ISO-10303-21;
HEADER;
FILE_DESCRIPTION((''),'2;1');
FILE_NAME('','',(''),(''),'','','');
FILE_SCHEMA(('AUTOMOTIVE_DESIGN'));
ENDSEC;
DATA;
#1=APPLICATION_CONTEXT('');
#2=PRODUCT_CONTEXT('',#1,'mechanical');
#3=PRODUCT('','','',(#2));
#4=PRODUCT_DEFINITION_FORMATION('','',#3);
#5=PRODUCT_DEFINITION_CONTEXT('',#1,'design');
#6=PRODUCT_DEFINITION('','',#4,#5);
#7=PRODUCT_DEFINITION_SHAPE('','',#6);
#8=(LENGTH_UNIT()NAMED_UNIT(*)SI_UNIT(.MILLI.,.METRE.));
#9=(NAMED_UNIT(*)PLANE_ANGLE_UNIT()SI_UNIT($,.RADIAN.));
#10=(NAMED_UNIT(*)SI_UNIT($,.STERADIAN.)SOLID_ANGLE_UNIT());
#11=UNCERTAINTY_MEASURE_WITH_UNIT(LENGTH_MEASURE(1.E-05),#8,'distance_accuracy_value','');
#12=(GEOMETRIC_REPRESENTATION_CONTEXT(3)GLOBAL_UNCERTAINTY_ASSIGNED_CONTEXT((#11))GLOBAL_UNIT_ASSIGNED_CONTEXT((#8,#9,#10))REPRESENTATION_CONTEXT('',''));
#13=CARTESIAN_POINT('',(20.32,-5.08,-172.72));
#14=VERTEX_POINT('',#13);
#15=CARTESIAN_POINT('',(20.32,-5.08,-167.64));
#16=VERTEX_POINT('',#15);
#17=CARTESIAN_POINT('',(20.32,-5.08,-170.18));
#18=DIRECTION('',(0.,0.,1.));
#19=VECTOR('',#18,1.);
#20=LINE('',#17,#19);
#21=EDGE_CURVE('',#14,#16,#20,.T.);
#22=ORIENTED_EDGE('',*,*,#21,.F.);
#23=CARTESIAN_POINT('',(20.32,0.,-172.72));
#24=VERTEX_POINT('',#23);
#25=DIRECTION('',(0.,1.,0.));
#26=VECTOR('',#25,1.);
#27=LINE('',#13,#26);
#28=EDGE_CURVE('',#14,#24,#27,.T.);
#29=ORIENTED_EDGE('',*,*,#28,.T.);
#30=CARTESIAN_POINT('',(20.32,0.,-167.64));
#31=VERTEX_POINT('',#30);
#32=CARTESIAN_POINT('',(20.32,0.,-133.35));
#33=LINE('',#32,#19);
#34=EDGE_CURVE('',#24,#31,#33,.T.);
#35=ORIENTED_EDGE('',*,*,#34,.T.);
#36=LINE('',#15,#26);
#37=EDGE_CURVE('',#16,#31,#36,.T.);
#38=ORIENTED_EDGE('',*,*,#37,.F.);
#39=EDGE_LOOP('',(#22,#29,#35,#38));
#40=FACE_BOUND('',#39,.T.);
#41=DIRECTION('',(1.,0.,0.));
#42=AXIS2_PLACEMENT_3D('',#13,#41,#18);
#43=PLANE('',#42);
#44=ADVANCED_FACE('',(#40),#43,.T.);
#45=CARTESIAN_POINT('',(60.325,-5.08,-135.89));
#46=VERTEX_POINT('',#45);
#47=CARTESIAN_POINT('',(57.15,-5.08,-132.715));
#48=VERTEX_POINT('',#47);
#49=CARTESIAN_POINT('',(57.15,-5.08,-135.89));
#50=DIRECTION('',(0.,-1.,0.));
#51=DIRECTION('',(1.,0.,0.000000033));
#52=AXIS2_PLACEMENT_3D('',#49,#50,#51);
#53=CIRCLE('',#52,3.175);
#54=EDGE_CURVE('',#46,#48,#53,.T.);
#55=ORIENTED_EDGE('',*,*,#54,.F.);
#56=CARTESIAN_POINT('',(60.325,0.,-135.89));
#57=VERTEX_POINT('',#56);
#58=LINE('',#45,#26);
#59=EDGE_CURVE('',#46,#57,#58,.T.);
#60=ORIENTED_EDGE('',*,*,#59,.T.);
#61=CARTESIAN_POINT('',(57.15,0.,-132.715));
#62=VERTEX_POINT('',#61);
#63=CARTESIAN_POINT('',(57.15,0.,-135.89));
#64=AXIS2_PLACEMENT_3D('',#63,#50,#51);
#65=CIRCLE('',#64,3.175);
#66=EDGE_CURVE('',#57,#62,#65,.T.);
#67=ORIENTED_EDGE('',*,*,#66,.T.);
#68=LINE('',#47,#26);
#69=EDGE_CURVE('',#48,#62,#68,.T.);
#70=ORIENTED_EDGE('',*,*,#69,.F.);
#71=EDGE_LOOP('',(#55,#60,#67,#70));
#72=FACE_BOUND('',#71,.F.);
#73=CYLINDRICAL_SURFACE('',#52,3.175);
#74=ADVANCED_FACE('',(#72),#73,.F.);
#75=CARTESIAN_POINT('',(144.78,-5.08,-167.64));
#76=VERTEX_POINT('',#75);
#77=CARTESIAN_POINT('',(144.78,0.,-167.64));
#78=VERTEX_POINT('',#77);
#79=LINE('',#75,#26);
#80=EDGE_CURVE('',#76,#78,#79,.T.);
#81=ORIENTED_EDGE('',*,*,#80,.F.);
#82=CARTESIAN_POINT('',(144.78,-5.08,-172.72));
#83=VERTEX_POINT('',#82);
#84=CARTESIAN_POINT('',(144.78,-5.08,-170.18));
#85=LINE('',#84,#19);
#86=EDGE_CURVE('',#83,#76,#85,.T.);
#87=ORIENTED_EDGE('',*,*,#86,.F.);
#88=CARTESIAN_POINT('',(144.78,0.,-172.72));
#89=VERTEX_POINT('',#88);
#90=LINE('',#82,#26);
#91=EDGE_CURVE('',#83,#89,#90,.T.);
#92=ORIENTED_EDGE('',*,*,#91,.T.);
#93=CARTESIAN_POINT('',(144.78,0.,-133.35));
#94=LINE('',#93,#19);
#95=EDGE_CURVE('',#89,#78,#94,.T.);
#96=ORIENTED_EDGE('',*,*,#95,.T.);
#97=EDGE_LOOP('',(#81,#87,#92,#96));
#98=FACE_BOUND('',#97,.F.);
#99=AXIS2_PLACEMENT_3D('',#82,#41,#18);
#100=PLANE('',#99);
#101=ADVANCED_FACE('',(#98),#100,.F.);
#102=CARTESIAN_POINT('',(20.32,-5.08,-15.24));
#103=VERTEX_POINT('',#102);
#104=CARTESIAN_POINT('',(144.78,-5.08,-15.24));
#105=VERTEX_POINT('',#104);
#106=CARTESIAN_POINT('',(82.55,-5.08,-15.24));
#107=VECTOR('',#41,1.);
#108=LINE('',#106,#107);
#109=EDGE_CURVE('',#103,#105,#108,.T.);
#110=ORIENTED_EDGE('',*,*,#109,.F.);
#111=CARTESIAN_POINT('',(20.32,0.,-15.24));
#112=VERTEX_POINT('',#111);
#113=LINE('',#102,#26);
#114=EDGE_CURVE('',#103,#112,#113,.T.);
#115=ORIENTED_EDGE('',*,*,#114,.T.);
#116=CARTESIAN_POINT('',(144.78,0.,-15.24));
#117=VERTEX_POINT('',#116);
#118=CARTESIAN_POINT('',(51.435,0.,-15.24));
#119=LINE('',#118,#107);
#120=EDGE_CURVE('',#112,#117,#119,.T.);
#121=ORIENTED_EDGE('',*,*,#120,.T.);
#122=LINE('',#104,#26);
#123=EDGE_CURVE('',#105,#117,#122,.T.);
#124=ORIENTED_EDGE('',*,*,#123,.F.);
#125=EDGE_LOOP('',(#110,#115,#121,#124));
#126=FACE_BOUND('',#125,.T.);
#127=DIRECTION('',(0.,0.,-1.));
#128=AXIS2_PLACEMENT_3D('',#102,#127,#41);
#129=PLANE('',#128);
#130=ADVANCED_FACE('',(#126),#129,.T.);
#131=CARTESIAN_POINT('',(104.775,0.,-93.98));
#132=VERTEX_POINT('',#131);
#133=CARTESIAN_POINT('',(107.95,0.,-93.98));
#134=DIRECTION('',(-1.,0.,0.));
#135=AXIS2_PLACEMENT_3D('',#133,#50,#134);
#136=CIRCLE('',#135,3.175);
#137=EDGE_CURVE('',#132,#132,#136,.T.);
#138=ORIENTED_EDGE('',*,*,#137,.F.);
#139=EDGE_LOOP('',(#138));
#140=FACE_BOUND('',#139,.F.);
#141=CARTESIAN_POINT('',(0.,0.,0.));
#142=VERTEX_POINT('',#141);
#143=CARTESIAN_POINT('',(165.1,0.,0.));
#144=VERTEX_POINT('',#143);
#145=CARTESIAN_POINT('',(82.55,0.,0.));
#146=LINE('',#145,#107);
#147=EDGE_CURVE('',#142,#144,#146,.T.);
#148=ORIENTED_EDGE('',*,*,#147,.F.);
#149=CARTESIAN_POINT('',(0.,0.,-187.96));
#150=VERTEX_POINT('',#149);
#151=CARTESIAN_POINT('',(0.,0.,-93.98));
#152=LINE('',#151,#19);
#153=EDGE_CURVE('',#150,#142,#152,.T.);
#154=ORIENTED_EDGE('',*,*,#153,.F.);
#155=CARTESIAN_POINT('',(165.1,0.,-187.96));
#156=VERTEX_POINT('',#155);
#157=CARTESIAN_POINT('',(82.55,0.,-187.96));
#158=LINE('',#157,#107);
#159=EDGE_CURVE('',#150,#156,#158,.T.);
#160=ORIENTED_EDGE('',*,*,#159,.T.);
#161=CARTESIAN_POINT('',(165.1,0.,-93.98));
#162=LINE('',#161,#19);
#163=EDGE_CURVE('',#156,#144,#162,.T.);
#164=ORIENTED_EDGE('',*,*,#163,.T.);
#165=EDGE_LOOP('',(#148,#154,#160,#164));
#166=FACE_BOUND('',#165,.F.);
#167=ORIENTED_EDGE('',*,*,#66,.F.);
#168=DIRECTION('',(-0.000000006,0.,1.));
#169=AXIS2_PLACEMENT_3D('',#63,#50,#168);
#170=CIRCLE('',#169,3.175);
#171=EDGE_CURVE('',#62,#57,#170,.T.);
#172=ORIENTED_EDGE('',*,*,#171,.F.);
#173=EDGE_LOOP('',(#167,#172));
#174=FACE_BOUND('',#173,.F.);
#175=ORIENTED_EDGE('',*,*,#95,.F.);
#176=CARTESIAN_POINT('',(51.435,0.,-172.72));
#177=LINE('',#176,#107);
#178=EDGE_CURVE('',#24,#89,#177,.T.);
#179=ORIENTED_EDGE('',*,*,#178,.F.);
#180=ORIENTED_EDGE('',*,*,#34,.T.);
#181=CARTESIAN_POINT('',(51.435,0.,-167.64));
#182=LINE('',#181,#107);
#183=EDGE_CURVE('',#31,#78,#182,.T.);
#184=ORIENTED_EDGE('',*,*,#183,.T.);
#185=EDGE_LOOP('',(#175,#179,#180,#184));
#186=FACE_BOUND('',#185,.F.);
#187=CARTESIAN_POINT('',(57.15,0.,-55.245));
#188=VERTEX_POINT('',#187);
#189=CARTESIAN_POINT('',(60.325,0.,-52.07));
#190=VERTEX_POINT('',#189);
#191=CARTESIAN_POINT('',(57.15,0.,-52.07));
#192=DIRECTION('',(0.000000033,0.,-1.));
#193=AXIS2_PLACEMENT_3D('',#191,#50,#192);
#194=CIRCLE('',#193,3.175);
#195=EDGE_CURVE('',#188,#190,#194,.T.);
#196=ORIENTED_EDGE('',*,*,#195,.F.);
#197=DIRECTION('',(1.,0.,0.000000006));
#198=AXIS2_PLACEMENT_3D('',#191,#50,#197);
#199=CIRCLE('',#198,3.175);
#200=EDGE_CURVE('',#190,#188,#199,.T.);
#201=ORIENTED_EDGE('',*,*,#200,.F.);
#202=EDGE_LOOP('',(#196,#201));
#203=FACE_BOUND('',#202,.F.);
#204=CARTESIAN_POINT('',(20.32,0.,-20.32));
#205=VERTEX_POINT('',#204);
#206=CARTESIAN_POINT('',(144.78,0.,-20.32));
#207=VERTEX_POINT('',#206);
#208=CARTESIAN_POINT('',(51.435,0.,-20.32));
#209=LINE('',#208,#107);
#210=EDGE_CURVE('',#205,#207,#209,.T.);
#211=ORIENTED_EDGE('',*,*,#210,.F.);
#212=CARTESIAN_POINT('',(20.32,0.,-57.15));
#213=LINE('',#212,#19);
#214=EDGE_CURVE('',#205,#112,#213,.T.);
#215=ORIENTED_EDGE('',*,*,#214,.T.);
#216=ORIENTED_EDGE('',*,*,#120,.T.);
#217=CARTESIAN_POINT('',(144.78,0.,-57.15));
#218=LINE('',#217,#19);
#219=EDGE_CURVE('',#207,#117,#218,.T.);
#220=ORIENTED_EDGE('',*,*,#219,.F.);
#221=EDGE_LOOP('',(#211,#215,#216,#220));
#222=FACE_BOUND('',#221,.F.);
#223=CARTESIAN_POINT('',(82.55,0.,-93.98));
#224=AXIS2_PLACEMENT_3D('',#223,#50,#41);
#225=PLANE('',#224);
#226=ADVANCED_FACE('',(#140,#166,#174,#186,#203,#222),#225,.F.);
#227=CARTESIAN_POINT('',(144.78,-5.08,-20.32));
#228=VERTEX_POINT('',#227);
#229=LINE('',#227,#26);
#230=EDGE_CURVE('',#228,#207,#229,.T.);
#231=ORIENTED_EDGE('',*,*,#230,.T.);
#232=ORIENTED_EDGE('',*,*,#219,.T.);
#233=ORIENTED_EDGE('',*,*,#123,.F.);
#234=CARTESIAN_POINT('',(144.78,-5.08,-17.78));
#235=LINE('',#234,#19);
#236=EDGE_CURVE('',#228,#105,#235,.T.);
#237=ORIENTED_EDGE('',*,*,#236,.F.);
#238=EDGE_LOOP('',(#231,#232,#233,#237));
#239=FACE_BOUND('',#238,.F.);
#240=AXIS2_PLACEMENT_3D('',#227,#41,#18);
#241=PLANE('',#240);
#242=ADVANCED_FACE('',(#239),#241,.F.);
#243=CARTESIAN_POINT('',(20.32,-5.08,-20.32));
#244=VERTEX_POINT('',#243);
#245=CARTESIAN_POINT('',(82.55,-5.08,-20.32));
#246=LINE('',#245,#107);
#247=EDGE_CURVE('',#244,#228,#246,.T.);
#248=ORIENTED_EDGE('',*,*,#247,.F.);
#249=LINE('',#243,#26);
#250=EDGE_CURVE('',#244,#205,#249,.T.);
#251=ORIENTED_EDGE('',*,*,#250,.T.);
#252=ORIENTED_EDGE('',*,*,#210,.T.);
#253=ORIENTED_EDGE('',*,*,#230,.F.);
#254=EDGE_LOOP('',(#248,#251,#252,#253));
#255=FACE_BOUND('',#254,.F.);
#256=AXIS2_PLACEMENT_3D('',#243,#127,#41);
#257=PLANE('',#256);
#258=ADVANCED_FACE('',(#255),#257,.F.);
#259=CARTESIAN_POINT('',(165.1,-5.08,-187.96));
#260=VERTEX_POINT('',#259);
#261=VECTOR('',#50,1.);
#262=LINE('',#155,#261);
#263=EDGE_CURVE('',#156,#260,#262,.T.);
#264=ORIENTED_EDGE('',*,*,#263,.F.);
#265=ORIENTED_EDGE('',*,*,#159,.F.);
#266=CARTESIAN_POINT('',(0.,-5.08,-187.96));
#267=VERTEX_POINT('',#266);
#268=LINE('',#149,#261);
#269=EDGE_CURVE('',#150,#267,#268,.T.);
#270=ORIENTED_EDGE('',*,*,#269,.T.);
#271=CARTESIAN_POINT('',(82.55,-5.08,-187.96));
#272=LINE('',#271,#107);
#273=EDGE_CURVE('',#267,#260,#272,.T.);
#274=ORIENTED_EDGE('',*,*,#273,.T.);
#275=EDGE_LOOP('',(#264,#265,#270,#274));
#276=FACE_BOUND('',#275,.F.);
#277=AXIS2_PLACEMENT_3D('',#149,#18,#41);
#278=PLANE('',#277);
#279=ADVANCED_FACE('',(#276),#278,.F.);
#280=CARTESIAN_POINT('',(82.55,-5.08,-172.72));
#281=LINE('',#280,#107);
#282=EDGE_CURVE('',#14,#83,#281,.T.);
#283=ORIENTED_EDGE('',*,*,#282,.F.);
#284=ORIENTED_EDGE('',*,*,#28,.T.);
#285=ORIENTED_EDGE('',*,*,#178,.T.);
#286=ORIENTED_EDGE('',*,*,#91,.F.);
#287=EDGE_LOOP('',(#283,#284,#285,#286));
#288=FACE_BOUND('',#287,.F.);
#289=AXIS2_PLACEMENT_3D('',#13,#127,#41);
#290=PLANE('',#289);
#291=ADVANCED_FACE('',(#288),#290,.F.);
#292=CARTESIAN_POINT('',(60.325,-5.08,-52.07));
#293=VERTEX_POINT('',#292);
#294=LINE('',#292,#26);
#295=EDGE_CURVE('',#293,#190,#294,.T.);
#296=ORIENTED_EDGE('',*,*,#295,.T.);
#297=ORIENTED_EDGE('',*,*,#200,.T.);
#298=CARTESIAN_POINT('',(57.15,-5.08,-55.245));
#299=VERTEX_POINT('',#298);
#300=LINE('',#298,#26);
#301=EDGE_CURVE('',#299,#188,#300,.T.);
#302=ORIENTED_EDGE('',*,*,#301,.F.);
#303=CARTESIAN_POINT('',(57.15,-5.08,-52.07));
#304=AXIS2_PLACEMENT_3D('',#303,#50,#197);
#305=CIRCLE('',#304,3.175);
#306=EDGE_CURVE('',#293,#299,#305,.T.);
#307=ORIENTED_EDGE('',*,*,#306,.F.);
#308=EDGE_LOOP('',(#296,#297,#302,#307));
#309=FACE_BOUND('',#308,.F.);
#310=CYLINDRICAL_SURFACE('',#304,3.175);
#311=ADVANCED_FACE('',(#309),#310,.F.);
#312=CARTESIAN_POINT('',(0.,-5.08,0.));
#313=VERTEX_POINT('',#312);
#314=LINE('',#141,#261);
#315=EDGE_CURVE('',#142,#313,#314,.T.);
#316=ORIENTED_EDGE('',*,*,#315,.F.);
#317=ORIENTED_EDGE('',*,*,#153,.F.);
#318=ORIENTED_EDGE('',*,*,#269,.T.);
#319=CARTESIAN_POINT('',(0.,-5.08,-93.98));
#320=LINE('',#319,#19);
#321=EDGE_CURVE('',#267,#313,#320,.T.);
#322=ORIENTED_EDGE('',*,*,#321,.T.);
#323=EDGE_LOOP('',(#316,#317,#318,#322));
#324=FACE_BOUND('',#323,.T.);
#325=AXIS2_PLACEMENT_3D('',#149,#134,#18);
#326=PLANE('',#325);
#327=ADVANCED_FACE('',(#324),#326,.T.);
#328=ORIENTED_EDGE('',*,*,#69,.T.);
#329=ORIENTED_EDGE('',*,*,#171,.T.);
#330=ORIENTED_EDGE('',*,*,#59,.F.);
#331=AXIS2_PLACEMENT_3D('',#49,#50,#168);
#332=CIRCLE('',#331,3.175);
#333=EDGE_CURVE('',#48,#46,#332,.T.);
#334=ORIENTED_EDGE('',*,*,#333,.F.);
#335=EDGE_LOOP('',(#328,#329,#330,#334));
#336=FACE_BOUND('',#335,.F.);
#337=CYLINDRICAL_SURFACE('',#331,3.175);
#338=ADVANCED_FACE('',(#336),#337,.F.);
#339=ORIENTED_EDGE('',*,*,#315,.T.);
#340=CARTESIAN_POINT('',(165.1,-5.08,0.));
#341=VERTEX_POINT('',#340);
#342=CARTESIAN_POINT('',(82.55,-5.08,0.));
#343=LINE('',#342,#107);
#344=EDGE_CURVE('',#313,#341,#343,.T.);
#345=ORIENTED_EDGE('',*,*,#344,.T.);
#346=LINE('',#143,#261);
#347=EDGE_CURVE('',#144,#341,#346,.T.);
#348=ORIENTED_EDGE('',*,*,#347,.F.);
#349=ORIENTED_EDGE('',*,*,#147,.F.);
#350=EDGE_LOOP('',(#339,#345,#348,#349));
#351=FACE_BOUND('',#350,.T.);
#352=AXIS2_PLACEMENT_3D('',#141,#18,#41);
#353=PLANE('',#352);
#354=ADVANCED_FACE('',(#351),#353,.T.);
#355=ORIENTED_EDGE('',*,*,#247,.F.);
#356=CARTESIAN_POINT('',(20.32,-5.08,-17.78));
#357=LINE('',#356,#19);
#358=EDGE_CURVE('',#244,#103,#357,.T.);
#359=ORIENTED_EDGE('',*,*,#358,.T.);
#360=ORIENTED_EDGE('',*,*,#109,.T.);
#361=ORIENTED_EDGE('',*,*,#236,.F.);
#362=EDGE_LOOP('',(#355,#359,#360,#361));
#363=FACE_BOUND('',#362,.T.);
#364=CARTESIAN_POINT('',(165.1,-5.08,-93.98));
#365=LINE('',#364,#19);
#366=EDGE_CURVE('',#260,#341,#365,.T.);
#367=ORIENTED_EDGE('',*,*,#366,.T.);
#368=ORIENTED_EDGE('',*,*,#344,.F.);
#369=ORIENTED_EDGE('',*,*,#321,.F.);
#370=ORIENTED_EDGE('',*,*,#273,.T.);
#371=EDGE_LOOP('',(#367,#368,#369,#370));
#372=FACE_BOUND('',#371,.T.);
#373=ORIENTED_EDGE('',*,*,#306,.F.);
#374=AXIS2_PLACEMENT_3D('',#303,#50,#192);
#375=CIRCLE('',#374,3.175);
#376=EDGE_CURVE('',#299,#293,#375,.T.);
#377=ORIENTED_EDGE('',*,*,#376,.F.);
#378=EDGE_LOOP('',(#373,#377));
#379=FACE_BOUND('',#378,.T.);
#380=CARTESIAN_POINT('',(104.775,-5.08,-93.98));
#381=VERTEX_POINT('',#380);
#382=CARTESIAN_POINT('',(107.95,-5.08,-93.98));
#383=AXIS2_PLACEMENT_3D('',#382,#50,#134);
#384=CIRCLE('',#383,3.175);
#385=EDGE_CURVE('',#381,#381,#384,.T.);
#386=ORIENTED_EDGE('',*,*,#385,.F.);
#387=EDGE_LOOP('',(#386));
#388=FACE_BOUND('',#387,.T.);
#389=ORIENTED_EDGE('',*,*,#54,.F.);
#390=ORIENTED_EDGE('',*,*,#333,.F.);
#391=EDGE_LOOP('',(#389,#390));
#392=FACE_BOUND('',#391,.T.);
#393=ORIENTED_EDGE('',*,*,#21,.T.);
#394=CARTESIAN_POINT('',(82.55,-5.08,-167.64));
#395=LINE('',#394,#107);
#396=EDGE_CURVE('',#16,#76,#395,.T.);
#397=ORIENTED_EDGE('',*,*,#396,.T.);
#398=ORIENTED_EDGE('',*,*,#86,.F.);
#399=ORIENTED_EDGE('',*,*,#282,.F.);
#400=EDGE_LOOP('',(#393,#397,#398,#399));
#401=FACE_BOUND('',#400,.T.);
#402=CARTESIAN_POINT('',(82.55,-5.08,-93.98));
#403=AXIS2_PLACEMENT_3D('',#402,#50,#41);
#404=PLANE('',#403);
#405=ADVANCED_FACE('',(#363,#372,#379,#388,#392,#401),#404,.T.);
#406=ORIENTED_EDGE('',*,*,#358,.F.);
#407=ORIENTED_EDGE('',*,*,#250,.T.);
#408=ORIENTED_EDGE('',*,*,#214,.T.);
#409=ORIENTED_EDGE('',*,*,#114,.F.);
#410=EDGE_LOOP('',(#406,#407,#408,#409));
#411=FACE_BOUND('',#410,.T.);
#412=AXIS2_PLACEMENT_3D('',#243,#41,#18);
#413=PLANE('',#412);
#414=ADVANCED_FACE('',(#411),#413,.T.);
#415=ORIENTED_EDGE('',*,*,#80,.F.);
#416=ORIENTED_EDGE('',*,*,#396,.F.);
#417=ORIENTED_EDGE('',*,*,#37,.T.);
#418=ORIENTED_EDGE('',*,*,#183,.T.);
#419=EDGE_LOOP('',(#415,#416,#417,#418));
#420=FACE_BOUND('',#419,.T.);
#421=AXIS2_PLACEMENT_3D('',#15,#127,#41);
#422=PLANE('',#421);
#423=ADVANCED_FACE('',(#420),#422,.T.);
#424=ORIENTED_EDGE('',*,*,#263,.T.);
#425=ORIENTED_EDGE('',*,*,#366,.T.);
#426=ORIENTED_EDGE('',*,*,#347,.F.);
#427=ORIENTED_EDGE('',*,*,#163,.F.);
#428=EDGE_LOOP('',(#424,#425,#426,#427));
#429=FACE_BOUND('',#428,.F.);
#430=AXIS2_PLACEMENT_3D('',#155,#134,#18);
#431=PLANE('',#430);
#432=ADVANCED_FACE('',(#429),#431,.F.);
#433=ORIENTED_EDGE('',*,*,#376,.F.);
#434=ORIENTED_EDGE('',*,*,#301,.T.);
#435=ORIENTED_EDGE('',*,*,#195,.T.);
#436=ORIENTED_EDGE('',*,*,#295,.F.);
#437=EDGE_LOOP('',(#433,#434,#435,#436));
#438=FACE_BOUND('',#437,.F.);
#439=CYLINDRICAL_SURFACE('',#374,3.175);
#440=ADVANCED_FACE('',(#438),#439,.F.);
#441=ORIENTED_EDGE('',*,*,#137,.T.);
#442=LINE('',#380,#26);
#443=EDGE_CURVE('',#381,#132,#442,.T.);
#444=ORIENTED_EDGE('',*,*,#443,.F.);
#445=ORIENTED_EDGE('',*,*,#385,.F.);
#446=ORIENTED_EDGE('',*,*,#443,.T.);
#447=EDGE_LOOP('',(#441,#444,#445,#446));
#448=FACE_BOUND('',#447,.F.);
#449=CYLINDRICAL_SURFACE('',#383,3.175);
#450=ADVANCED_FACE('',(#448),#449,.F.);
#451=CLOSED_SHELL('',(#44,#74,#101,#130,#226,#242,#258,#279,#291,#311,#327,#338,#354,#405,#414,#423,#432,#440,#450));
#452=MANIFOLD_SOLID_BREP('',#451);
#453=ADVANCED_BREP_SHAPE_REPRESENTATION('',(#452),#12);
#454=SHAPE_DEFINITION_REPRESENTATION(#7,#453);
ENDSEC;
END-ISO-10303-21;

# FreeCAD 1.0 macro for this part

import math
import FreeCAD as App
import Part
import Sketcher
from FreeCAD import Vector
Q = App.Units.Quantity


def add_polygon(sketch, points):
    """Adds a closed chain of lines whose ends are joined by coincident constraints."""
    first, n = sketch.GeometryCount, len(points)
    for a, b in zip(points, points[1:] + points[:1]):
        sketch.addGeometry(Part.LineSegment(App.Vector(*a, 0), App.Vector(*b, 0)), False)
    for i in range(n):
        sketch.addConstraint(Sketcher.Constraint("Coincident", first + i, 2, first + (i + 1) % n, 1))

doc = App.newDocument("Part")
body = doc.addObject("PartDesign::Body", "Body")

# Sketch on XZ plane
sketch1 = body.newObject("Sketcher::SketchObject", "Sketch")
sketch1.AttachmentSupport = (doc.getObject("XZ_Plane"), [""])
sketch1.MapMode = "FlatFace"
add_polygon(sketch1, [(0, 0), (0, -187.96), (165.1, -187.96), (165.1, 0)])  # lines 0-3
sketch1.addConstraint([
    Sketcher.Constraint("Vertical", 0),
    Sketcher.Constraint("Horizontal", 1),
    Sketcher.Constraint("Vertical", 2),
    Sketcher.Constraint("Horizontal", 3),
    Sketcher.Constraint("Coincident", 3, 2, -1, 1),
    Sketcher.Constraint("DistanceX", 1, 1, 1, 2, Q("6.5 in")),
    Sketcher.Constraint("DistanceY", 0, 2, 0, 1, Q("7.4 in")),
])
pad1 = body.newObject("PartDesign::Pad", "Pad")
pad1.Profile = sketch1
pad1.Length = Q("0.2 in")

# Sketch on XZ plane
sketch2 = body.newObject("Sketcher::SketchObject", "Sketch001")
sketch2.AttachmentSupport = (doc.getObject("XZ_Plane"), [""])
sketch2.MapMode = "FlatFace"
sketch2.AttachmentOffset = App.Placement(Vector(0, 0, 0.2 * 25.4), App.Rotation())
add_polygon(sketch2, [(20.32, -15.24), (20.32, -20.32), (144.78, -20.32), (144.78, -15.24)])  # lines 0-3
add_polygon(sketch2, [(20.32, -167.64), (20.32, -172.72), (144.78, -172.72), (144.78, -167.64)])  # lines 4-7
sketch2.addConstraint([
    Sketcher.Constraint("Vertical", 0),
    Sketcher.Constraint("Horizontal", 1),
    Sketcher.Constraint("Vertical", 2),
    Sketcher.Constraint("Horizontal", 3),
    Sketcher.Constraint("Vertical", 4),
    Sketcher.Constraint("Horizontal", 5),
    Sketcher.Constraint("Vertical", 6),
    Sketcher.Constraint("Horizontal", 7),
    Sketcher.Constraint("Vertical", 3, 2, 4, 2),
    Sketcher.Constraint("Vertical", 2, 2, 5, 2),
    Sketcher.Constraint("Equal", 2, 4),
    Sketcher.Constraint("DistanceX", 1, 1, 1, 2, Q("4.9 in")),
    Sketcher.Constraint("DistanceY", 0, 2, 0, 1, Q("0.2 in")),
    Sketcher.Constraint("DistanceY", 4, 2, 0, 2, Q("6 in")),
    Sketcher.Constraint("DistanceX", -1, 1, 0, 2, Q("0.8 in")),
    Sketcher.Constraint("DistanceY", 0, 2, -1, 1, Q("0.8 in")),
])
pocket1 = body.newObject("PartDesign::Pocket", "Pocket")
pocket1.Profile = sketch2
pocket1.Length = Q("1 in")

# Sketch on XZ plane
sketch3 = body.newObject("Sketcher::SketchObject", "Sketch002")
sketch3.AttachmentSupport = (doc.getObject("XZ_Plane"), [""])
sketch3.MapMode = "FlatFace"
sketch3.AttachmentOffset = App.Placement(Vector(0, 0, 0.2 * 25.4), App.Rotation())
sketch3.addGeometry([
    Part.Circle(Vector(107.95, -93.98, 0), Vector(0, 0, 1), 3.175),  # 0
    Part.ArcOfCircle(Part.Circle(Vector(57.15, -135.89, 0), Vector(0, 0, 1), 3.175), math.radians(0.000002), math.radians(89.999998)),  # 1
    Part.ArcOfCircle(Part.Circle(Vector(57.15, -135.89, 0), Vector(0, 0, 1), 3.175), math.radians(90), math.radians(360)),  # 2
    Part.ArcOfCircle(Part.Circle(Vector(57.15, -52.07, 0), Vector(0, 0, 1), 3.175), math.radians(0), math.radians(270)),  # 3
    Part.ArcOfCircle(Part.Circle(Vector(57.15, -52.07, 0), Vector(0, 0, 1), 3.175), math.radians(-89.999998), math.radians(-0.000002)),  # 4
], False)
sketch3.addConstraint([
    Sketcher.Constraint("Tangent", 1, 1, 2, 2),
    Sketcher.Constraint("Coincident", 2, 1, 1, 2),
    Sketcher.Constraint("Tangent", 3, 1, 4, 2),
    Sketcher.Constraint("Coincident", 4, 1, 3, 2),
    Sketcher.Constraint("Equal", 0, 1),
    Sketcher.Constraint("Equal", 2, 3),
    Sketcher.Constraint("Horizontal", 2, 3, 1, 1),
    Sketcher.Constraint("Horizontal", 4, 3, 3, 1),
    Sketcher.Constraint("Vertical", 2, 3, 3, 3),
    Sketcher.Constraint("Vertical", 4, 3, 2, 1),
    Sketcher.Constraint("Vertical", 2, 1, 4, 1),
    Sketcher.Constraint("Diameter", 0, Q("0.25 in")),
    Sketcher.Constraint("DistanceX", 1, 3, 0, 3, Q("2 in")),
    Sketcher.Constraint("DistanceY", 0, 3, -1, 1, Q("3.7 in")),
    Sketcher.Constraint("DistanceY", 2, 3, 3, 3, Q("3.3 in")),
    Sketcher.Constraint("DistanceX", -1, 1, 0, 3, Q("4.25 in")),
    Sketcher.Constraint("DistanceY", 1, 3, -1, 1, Q("5.35 in")),
])
pocket2 = body.newObject("PartDesign::Pocket", "Pocket001")
pocket2.Profile = sketch3
pocket2.Length = Q("1 in")

doc.recompute()
